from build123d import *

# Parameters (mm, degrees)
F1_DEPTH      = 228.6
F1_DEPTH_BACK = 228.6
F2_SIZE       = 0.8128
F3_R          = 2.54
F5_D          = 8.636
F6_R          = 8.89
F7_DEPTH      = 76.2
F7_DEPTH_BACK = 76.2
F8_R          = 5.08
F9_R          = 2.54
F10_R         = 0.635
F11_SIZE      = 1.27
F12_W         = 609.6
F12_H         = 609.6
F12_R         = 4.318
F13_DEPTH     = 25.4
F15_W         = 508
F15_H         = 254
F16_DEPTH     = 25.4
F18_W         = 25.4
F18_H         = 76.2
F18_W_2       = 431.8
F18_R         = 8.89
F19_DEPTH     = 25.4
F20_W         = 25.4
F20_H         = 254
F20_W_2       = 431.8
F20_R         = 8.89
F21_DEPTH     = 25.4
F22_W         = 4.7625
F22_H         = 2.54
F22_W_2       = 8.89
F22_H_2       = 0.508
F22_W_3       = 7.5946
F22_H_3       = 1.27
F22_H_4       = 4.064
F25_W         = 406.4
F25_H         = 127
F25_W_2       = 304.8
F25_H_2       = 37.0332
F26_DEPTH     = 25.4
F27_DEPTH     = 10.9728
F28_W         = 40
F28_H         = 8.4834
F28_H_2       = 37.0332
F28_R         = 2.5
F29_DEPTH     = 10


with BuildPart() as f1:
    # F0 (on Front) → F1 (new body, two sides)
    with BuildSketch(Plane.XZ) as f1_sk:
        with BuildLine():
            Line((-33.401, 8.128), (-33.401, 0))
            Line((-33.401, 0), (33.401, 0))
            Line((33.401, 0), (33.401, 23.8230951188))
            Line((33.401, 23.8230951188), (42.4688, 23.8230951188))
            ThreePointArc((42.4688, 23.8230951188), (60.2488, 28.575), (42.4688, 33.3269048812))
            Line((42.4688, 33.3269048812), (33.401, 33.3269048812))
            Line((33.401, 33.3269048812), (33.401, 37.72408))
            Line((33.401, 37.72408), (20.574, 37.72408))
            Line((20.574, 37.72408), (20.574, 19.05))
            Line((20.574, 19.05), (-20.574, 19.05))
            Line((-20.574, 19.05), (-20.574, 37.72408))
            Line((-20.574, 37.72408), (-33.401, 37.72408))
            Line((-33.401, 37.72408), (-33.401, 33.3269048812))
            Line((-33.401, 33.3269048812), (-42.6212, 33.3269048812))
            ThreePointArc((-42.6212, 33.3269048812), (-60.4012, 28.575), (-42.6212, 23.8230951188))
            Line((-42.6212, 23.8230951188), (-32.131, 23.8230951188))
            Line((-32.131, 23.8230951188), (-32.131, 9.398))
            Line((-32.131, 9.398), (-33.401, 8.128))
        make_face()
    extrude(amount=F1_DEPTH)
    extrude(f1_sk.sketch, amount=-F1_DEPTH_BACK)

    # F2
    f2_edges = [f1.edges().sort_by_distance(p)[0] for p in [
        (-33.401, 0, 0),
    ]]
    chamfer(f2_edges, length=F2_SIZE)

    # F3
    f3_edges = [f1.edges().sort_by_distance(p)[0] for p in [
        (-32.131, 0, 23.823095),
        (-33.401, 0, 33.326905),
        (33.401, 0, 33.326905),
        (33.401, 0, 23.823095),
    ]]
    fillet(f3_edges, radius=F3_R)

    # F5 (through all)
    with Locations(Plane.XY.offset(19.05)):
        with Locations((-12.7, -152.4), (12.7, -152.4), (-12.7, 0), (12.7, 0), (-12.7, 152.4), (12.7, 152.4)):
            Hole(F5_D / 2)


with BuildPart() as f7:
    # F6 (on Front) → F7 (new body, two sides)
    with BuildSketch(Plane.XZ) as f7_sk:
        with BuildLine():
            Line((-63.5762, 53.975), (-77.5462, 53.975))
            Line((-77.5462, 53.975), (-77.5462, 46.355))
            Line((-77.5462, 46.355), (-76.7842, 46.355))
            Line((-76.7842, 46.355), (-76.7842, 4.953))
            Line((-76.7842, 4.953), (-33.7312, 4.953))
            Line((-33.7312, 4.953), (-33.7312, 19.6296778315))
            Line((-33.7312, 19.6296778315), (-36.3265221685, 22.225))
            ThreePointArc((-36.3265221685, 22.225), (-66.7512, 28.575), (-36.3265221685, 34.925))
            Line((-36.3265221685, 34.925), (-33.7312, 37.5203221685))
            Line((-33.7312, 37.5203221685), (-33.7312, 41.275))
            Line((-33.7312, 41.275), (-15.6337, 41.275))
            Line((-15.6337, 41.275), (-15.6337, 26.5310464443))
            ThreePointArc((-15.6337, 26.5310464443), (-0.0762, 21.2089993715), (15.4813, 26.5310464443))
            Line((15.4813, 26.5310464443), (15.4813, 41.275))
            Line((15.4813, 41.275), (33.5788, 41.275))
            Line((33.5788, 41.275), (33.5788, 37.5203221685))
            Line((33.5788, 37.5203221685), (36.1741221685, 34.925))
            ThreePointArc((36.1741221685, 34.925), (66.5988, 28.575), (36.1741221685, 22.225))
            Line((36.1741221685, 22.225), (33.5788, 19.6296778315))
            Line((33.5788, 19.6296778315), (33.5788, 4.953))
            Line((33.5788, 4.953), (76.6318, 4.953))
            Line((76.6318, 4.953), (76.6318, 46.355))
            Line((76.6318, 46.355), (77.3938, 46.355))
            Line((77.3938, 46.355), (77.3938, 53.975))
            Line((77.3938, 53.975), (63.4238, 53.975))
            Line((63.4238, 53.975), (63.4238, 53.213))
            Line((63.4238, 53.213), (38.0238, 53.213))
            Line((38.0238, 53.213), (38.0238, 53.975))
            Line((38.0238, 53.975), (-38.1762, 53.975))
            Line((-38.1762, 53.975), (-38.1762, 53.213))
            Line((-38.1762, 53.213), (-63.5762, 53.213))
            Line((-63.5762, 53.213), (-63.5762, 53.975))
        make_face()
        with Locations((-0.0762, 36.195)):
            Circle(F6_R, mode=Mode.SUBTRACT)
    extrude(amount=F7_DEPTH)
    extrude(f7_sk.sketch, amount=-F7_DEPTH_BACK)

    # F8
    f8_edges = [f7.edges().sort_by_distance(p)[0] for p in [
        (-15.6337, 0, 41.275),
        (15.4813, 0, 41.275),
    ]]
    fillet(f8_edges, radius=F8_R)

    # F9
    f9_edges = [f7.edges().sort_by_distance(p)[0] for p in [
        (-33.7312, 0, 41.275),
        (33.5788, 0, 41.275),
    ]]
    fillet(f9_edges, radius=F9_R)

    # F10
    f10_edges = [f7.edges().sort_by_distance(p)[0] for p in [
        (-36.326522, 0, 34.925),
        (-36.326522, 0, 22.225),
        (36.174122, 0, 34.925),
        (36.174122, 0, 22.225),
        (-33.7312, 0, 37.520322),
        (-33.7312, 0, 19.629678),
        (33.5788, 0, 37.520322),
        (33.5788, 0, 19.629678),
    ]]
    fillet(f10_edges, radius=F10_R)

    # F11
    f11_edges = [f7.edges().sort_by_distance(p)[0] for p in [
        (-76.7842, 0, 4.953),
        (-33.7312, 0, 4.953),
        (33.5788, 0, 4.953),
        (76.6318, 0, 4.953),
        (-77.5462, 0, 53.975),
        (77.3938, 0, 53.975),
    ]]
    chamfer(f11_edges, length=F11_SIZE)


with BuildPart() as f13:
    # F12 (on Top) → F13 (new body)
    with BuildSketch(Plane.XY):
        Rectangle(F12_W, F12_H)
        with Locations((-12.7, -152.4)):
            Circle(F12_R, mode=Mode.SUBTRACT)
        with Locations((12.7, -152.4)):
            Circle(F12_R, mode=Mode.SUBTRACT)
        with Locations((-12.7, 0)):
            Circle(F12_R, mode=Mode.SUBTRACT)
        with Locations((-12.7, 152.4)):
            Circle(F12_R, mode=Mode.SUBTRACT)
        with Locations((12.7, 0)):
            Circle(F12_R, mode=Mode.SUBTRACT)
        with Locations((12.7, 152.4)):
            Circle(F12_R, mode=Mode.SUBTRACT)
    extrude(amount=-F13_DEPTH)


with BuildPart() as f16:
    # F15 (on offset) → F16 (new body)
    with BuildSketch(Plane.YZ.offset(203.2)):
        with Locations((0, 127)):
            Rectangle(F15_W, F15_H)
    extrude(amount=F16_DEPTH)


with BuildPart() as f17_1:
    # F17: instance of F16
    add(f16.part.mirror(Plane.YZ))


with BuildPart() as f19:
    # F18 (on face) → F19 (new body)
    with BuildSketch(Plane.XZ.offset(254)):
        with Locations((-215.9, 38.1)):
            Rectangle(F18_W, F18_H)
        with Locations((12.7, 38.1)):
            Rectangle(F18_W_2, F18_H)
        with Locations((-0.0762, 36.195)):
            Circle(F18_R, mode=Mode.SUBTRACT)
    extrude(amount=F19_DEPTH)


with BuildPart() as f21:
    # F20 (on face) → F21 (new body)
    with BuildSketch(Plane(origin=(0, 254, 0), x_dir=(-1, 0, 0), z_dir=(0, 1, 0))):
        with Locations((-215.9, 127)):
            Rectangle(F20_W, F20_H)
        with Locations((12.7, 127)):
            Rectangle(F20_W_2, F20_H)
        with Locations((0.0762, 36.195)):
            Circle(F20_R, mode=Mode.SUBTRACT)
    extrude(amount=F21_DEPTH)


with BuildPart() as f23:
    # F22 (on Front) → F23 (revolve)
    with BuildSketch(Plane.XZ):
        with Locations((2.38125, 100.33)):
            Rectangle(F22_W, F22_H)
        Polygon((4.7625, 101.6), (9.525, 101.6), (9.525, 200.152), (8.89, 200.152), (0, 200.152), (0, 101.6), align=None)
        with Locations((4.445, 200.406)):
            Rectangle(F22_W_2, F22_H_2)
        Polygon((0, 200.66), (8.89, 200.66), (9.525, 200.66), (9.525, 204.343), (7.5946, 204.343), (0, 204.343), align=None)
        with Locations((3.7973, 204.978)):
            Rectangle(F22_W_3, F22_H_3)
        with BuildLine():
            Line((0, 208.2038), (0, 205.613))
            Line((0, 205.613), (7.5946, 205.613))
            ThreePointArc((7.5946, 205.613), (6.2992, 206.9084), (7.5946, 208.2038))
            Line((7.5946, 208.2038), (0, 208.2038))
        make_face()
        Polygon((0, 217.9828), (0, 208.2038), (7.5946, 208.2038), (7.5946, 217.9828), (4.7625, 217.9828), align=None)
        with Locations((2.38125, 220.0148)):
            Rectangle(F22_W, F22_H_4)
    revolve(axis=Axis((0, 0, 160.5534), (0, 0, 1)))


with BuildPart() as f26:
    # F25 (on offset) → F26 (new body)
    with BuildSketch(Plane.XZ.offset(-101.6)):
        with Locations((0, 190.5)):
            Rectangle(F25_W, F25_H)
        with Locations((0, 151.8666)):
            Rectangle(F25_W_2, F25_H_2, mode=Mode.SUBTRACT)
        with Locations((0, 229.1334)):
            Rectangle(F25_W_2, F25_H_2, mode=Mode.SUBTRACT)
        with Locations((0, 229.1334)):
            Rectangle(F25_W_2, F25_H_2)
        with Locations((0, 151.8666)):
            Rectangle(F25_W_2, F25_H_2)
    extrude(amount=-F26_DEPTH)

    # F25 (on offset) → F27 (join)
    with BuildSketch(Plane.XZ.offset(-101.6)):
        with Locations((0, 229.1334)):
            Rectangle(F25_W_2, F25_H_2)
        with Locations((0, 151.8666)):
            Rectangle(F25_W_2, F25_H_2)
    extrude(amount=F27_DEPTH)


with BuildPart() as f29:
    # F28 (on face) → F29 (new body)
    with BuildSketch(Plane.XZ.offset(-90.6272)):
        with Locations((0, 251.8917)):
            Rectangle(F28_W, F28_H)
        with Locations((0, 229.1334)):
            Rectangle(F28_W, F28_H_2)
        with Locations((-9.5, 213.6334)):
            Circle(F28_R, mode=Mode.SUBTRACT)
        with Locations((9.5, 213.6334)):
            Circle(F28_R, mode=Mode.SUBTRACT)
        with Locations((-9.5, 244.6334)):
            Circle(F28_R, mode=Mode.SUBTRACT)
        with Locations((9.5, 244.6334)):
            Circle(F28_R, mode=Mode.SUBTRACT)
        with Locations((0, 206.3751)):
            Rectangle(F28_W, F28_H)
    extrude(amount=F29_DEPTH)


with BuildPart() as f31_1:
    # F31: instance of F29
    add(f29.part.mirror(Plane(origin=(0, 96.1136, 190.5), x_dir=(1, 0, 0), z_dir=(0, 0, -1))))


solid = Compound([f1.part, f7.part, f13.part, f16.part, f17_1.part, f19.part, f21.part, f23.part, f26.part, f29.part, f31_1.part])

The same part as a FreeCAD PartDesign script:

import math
import FreeCAD as App
import Part
import Sketcher
from FreeCAD import Vector
Q = App.Units.Quantity


def edges_at(feature, points):
    """Names of the edges that pass closest to the given points."""
    edges = feature.Shape.Edges
    near = lambda p: min(range(len(edges)), key=lambda i: edges[i].distToShape(Part.Vertex(*p))[0])
    return sorted({f"Edge{near(p) + 1}" for p in points})


def add_polygon(sketch, points):
    """Adds a closed chain of lines whose ends are joined by coincident constraints."""
    first, n = sketch.GeometryCount, len(points)
    for a, b in zip(points, points[1:] + points[:1]):
        sketch.addGeometry(Part.LineSegment(App.Vector(*a, 0), App.Vector(*b, 0)), False)
    for i in range(n):
        sketch.addConstraint(Sketcher.Constraint("Coincident", first + i, 2, first + (i + 1) % n, 1))

doc = App.newDocument("Part")
body = doc.addObject("PartDesign::Body", "Body")

sketch1 = body.newObject("Sketcher::SketchObject", "Sketch")
sketch1.AttachmentSupport = (doc.getObject("XZ_Plane"), [""])
sketch1.MapMode = "FlatFace"
sketch1.addGeometry([
    Part.LineSegment(Vector(-33.401, 8.128, 0), Vector(-33.401, 0, 0)),
    Part.LineSegment(Vector(-33.401, 0, 0), Vector(33.401, 0, 0)),
    Part.LineSegment(Vector(33.401, 0, 0), Vector(33.401, 23.823095, 0)),
    Part.LineSegment(Vector(33.401, 23.823095, 0), Vector(42.4688, 23.823095, 0)),
    Part.ArcOfCircle(Part.Circle(Vector(50.7238, 28.575, 0), Vector(0, 0, 1), 9.525), math.radians(-150.073565), math.radians(150.073565)),
    Part.LineSegment(Vector(42.4688, 33.326905, 0), Vector(33.401, 33.326905, 0)),
    Part.LineSegment(Vector(33.401, 33.326905, 0), Vector(33.401, 37.72408, 0)),
    Part.LineSegment(Vector(33.401, 37.72408, 0), Vector(20.574, 37.72408, 0)),
    Part.LineSegment(Vector(20.574, 37.72408, 0), Vector(20.574, 19.05, 0)),
    Part.LineSegment(Vector(20.574, 19.05, 0), Vector(-20.574, 19.05, 0)),
    Part.LineSegment(Vector(-20.574, 19.05, 0), Vector(-20.574, 37.72408, 0)),
    Part.LineSegment(Vector(-20.574, 37.72408, 0), Vector(-33.401, 37.72408, 0)),
    Part.LineSegment(Vector(-33.401, 37.72408, 0), Vector(-33.401, 33.326905, 0)),
    Part.LineSegment(Vector(-33.401, 33.326905, 0), Vector(-42.6212, 33.326905, 0)),
    Part.ArcOfCircle(Part.Circle(Vector(-50.8762, 28.575, 0), Vector(0, 0, 1), 9.525), math.radians(29.926435), math.radians(330.073565)),
    Part.LineSegment(Vector(-42.6212, 23.823095, 0), Vector(-32.131, 23.823095, 0)),
    Part.LineSegment(Vector(-32.131, 23.823095, 0), Vector(-32.131, 9.398, 0)),
    Part.LineSegment(Vector(-32.131, 9.398, 0), Vector(-33.401, 8.128, 0)),
], False)
sketch1.addConstraint([
    Sketcher.Constraint("Coincident", 0, 2, 1, 1),
    Sketcher.Constraint("Coincident", 1, 2, 2, 1),
    Sketcher.Constraint("Coincident", 2, 2, 3, 1),
    Sketcher.Constraint("Coincident", 3, 2, 4, 1),
    Sketcher.Constraint("Coincident", 4, 2, 5, 1),
    Sketcher.Constraint("Coincident", 5, 2, 6, 1),
    Sketcher.Constraint("Coincident", 6, 2, 7, 1),
    Sketcher.Constraint("Coincident", 7, 2, 8, 1),
    Sketcher.Constraint("Coincident", 8, 2, 9, 1),
    Sketcher.Constraint("Coincident", 9, 2, 10, 1),
    Sketcher.Constraint("Coincident", 10, 2, 11, 1),
    Sketcher.Constraint("Coincident", 11, 2, 12, 1),
    Sketcher.Constraint("Coincident", 12, 2, 13, 1),
    Sketcher.Constraint("Coincident", 13, 2, 14, 1),
    Sketcher.Constraint("Coincident", 14, 2, 15, 1),
    Sketcher.Constraint("Coincident", 15, 2, 16, 1),
    Sketcher.Constraint("Coincident", 16, 2, 17, 1),
    Sketcher.Constraint("Coincident", 17, 2, 0, 1),
    Sketcher.Constraint("Vertical", 0),
    Sketcher.Constraint("Horizontal", 1),
    Sketcher.Constraint("Vertical", 2),
    Sketcher.Constraint("Horizontal", 3),
    Sketcher.Constraint("Horizontal", 5),
    Sketcher.Constraint("Vertical", 6),
    Sketcher.Constraint("Horizontal", 7),
    Sketcher.Constraint("Vertical", 8),
    Sketcher.Constraint("Horizontal", 9),
    Sketcher.Constraint("Vertical", 10),
    Sketcher.Constraint("Horizontal", 11),
    Sketcher.Constraint("Vertical", 12),
    Sketcher.Constraint("Horizontal", 13),
    Sketcher.Constraint("Horizontal", 15),
    Sketcher.Constraint("Vertical", 16),
    Sketcher.Constraint("Equal", 4, 14),
    Sketcher.Constraint("Symmetric", 0, 2, 1, 2, -1, 1),
    Sketcher.Constraint("Symmetric", 7, 2, 10, 2, -2),
    Sketcher.Constraint("Symmetric", 5, 2, 12, 2, -2),
    Sketcher.Constraint("Horizontal", 4, 3, 14, 3),
    Sketcher.Constraint("Horizontal", 3, 2, 14, 2),
    Sketcher.Constraint("Vertical", 3, 2, 4, 2),
    Sketcher.Constraint("Vertical", 2, 2, 5, 2),
    Sketcher.Constraint("Angle", 17, Q("-135 deg")),
    Sketcher.Constraint("Radius", 4, Q("0.375 in")),
    Sketcher.Constraint("DistanceX", 14, 3, 4, 3, Q("4 in")),
    Sketcher.Constraint("DistanceX", 1, 1, 1, 2, Q("2.63 in")),
    Sketcher.Constraint("DistanceX", 9, 2, 9, 1, Q("1.62 in")),
    Sketcher.Constraint("DistanceY", 0, 2, 0, 1, Q("0.32 in")),
    Sketcher.Constraint("DistanceX", 3, 1, 3, 2, Q("0.357 in")),
    Sketcher.Constraint("DistanceX", 13, 2, 13, 1, Q("0.363 in")),
    Sketcher.Constraint("DistanceX", 15, 1, 15, 2, Q("0.413 in")),
    Sketcher.Constraint("DistanceY", -1, 1, 8, 2, Q("0.75 in")),
    Sketcher.Constraint("DistanceY", 8, 2, 8, 1, Q("0.7352 in")),
    Sketcher.Constraint("DistanceY", -1, 1, 4, 3, Q("1.125 in")),
])
pad1 = body.newObject("PartDesign::Pad", "Pad")
pad1.Profile = sketch1
pad1.Type = "TwoLengths"
pad1.Length = Q("9 in")
pad1.Length2 = Q("9 in")
doc.recompute()

chamfer = body.newObject("PartDesign::Chamfer", "Chamfer")
chamfer.Base = (pad1, edges_at(pad1, [(-33.401, 0, 0)]))
chamfer.Size = Q("0.032 in")
doc.recompute()

fillet = body.newObject("PartDesign::Fillet", "Fillet")
fillet.Base = (chamfer, edges_at(chamfer, [
    (-32.131, 0, 23.823),
    (-33.401, 0, 33.327),
    (33.401, 0, 33.327),
    (33.401, 0, 23.823),
]))
fillet.Radius = Q("0.1 in")

sketch2 = body.newObject("Sketcher::SketchObject", "Sketch001")
sketch2.AttachmentSupport = (doc.getObject("XY_Plane"), [""])
sketch2.MapMode = "FlatFace"
sketch2.AttachmentOffset = App.Placement(Vector(0, 0, 0.75 * 25.4), App.Rotation())
sketch2.addGeometry([
    Part.Circle(Vector(-12.7, -152.4, 0), Vector(0, 0, 1), 4.318),
    Part.Circle(Vector(12.7, -152.4, 0), Vector(0, 0, 1), 4.318),
    Part.Circle(Vector(-12.7, 0, 0), Vector(0, 0, 1), 4.318),
    Part.Circle(Vector(12.7, 0, 0), Vector(0, 0, 1), 4.318),
    Part.Circle(Vector(-12.7, 152.4, 0), Vector(0, 0, 1), 4.318),
    Part.Circle(Vector(12.7, 152.4, 0), Vector(0, 0, 1), 4.318),
], False)
sketch2.addConstraint([
    Sketcher.Constraint("Equal", 0, 1),
    Sketcher.Constraint("Equal", 1, 2),
    Sketcher.Constraint("Equal", 2, 3),
    Sketcher.Constraint("Equal", 3, 4),
    Sketcher.Constraint("Equal", 4, 5),
    Sketcher.Constraint("Symmetric", 2, 3, 3, 3, -1, 1),
    Sketcher.Constraint("Symmetric", 1, 3, 4, 3, -1, 1),
    Sketcher.Constraint("Symmetric", 0, 3, 5, 3, -1, 1),
    Sketcher.Constraint("Symmetric", 0, 3, 1, 3, -2),
    Sketcher.Constraint("PointOnObject", 2, 3, -1),
    Sketcher.Constraint("Vertical", 0, 3, 2, 3),
    Sketcher.Constraint("Diameter", 0, Q("0.34 in")),
    Sketcher.Constraint("DistanceY", 0, 3, -1, 1, Q("6 in")),
    Sketcher.Constraint("DistanceX", 0, 3, 1, 3, Q("1 in")),
])
doc.recompute()
hole = body.newObject("PartDesign::Hole", "Hole")
hole.Profile = sketch2
hole.ThreadType = "None"
hole.Diameter = Q("0.34 in")
hole.DepthType = "ThroughAll"
body2 = doc.addObject("PartDesign::Body", "Body001")

sketch3 = body2.newObject("Sketcher::SketchObject", "Sketch002")
sketch3.AttachmentSupport = (doc.getObject("XZ_Plane001"), [""])
sketch3.MapMode = "FlatFace"
sketch3.addGeometry([
    Part.LineSegment(Vector(-63.5762, 53.975, 0), Vector(-77.5462, 53.975, 0)),
    Part.LineSegment(Vector(-77.5462, 53.975, 0), Vector(-77.5462, 46.355, 0)),
    Part.LineSegment(Vector(-77.5462, 46.355, 0), Vector(-76.7842, 46.355, 0)),
    Part.LineSegment(Vector(-76.7842, 46.355, 0), Vector(-76.7842, 4.953, 0)),
    Part.LineSegment(Vector(-76.7842, 4.953, 0), Vector(-33.7312, 4.953, 0)),
    Part.LineSegment(Vector(-33.7312, 4.953, 0), Vector(-33.7312, 19.629678, 0)),
    Part.LineSegment(Vector(-33.7312, 19.629678, 0), Vector(-36.326522, 22.225, 0)),
    Part.ArcOfCircle(Part.Circle(Vector(-50.8762, 28.575, 0), Vector(0, 0, 1), 15.875), math.radians(23.578178), math.radians(336.421822)),
    Part.LineSegment(Vector(-36.326522, 34.925, 0), Vector(-33.7312, 37.520322, 0)),
    Part.LineSegment(Vector(-33.7312, 37.520322, 0), Vector(-33.7312, 41.275, 0)),
    Part.LineSegment(Vector(-33.7312, 41.275, 0), Vector(-15.6337, 41.275, 0)),
    Part.LineSegment(Vector(-15.6337, 41.275, 0), Vector(-15.6337, 26.531046, 0)),
    Part.ArcOfCircle(Part.Circle(Vector(-0.0762, 46.608999, 0), Vector(0, 0, 1), 25.4), math.radians(-127.77049), math.radians(-52.22951)),
    Part.LineSegment(Vector(15.4813, 26.531046, 0), Vector(15.4813, 41.275, 0)),
    Part.LineSegment(Vector(15.4813, 41.275, 0), Vector(33.5788, 41.275, 0)),
    Part.LineSegment(Vector(33.5788, 41.275, 0), Vector(33.5788, 37.520322, 0)),
    Part.LineSegment(Vector(33.5788, 37.520322, 0), Vector(36.174122, 34.925, 0)),
    Part.ArcOfCircle(Part.Circle(Vector(50.7238, 28.575, 0), Vector(0, 0, 1), 15.875), math.radians(-156.421822), math.radians(156.421822)),
    Part.LineSegment(Vector(36.174122, 22.225, 0), Vector(33.5788, 19.629678, 0)),
    Part.LineSegment(Vector(33.5788, 19.629678, 0), Vector(33.5788, 4.953, 0)),
    Part.LineSegment(Vector(33.5788, 4.953, 0), Vector(76.6318, 4.953, 0)),
    Part.LineSegment(Vector(76.6318, 4.953, 0), Vector(76.6318, 46.355, 0)),
    Part.LineSegment(Vector(76.6318, 46.355, 0), Vector(77.3938, 46.355, 0)),
    Part.LineSegment(Vector(77.3938, 46.355, 0), Vector(77.3938, 53.975, 0)),
    Part.LineSegment(Vector(77.3938, 53.975, 0), Vector(63.4238, 53.975, 0)),
    Part.LineSegment(Vector(63.4238, 53.975, 0), Vector(63.4238, 53.213, 0)),
    Part.LineSegment(Vector(63.4238, 53.213, 0), Vector(38.0238, 53.213, 0)),
    Part.LineSegment(Vector(38.0238, 53.213, 0), Vector(38.0238, 53.975, 0)),
    Part.LineSegment(Vector(38.0238, 53.975, 0), Vector(-38.1762, 53.975, 0)),
    Part.LineSegment(Vector(-38.1762, 53.975, 0), Vector(-38.1762, 53.213, 0)),
    Part.LineSegment(Vector(-38.1762, 53.213, 0), Vector(-63.5762, 53.213, 0)),
    Part.LineSegment(Vector(-63.5762, 53.213, 0), Vector(-63.5762, 53.975, 0)),
    Part.Circle(Vector(-0.0762, 36.195, 0), Vector(0, 0, 1), 8.89),
], False)
sketch3.addConstraint([
    Sketcher.Constraint("Coincident", 0, 2, 1, 1),
    Sketcher.Constraint("Coincident", 1, 2, 2, 1),
    Sketcher.Constraint("Coincident", 2, 2, 3, 1),
    Sketcher.Constraint("Coincident", 3, 2, 4, 1),
    Sketcher.Constraint("Coincident", 4, 2, 5, 1),
    Sketcher.Constraint("Coincident", 5, 2, 6, 1),
    Sketcher.Constraint("Coincident", 6, 2, 7, 2),
    Sketcher.Constraint("Coincident", 7, 1, 8, 1),
    Sketcher.Constraint("Coincident", 8, 2, 9, 1),
    Sketcher.Constraint("Coincident", 9, 2, 10, 1),
    Sketcher.Constraint("Coincident", 10, 2, 11, 1),
    Sketcher.Constraint("Coincident", 11, 2, 12, 1),
    Sketcher.Constraint("Coincident", 12, 2, 13, 1),
    Sketcher.Constraint("Coincident", 13, 2, 14, 1),
    Sketcher.Constraint("Coincident", 14, 2, 15, 1),
    Sketcher.Constraint("Coincident", 15, 2, 16, 1),
    Sketcher.Constraint("Coincident", 16, 2, 17, 2),
    Sketcher.Constraint("Coincident", 17, 1, 18, 1),
    Sketcher.Constraint("Coincident", 18, 2, 19, 1),
    Sketcher.Constraint("Coincident", 19, 2, 20, 1),
    Sketcher.Constraint("Coincident", 20, 2, 21, 1),
    Sketcher.Constraint("Coincident", 21, 2, 22, 1),
    Sketcher.Constraint("Coincident", 22, 2, 23, 1),
    Sketcher.Constraint("Coincident", 23, 2, 24, 1),
    Sketcher.Constraint("Coincident", 24, 2, 25, 1),
    Sketcher.Constraint("Coincident", 25, 2, 26, 1),
    Sketcher.Constraint("Coincident", 26, 2, 27, 1),
    Sketcher.Constraint("Coincident", 27, 2, 28, 1),
    Sketcher.Constraint("Coincident", 28, 2, 29, 1),
    Sketcher.Constraint("Coincident", 29, 2, 30, 1),
    Sketcher.Constraint("Coincident", 30, 2, 31, 1),
    Sketcher.Constraint("Coincident", 31, 2, 0, 1),
    Sketcher.Constraint("Horizontal", 0),
    Sketcher.Constraint("Vertical", 1),
    Sketcher.Constraint("Horizontal", 2),
    Sketcher.Constraint("Vertical", 3),
    Sketcher.Constraint("Horizontal", 4),
    Sketcher.Constraint("Vertical", 5),
    Sketcher.Constraint("Vertical", 9),
    Sketcher.Constraint("Horizontal", 10),
    Sketcher.Constraint("Vertical", 11),
    Sketcher.Constraint("Vertical", 13),
    Sketcher.Constraint("Horizontal", 14),
    Sketcher.Constraint("Vertical", 15),
    Sketcher.Constraint("Vertical", 19),
    Sketcher.Constraint("Horizontal", 20),
    Sketcher.Constraint("Vertical", 21),
    Sketcher.Constraint("Horizontal", 22),
    Sketcher.Constraint("Vertical", 23),
    Sketcher.Constraint("Horizontal", 24),
    Sketcher.Constraint("Vertical", 25),
    Sketcher.Constraint("Horizontal", 26),
    Sketcher.Constraint("Vertical", 27),
    Sketcher.Constraint("Horizontal", 28),
    Sketcher.Constraint("Vertical", 29),
    Sketcher.Constraint("Horizontal", 30),
    Sketcher.Constraint("Vertical", 31),
    Sketcher.Constraint("Equal", 7, 17),
    Sketcher.Constraint("Perpendicular", 6, 8),
    Sketcher.Constraint("Perpendicular", 8, 16),
    Sketcher.Constraint("Perpendicular", 16, 18),
    Sketcher.Constraint("Horizontal", 7, 3, 17, 3),
    Sketcher.Constraint("Horizontal", 11, 2, 12, 2),
    Sketcher.Constraint("Horizontal", 10, 2, 13, 2),
    Sketcher.Constraint("Horizontal", 8, 2, 15, 2),
    Sketcher.Constraint("Horizontal", 7, 1, 16, 2),
    Sketcher.Constraint("Horizontal", 6, 2, 17, 1),
    Sketcher.Constraint("Horizontal", 5, 2, 18, 2),
    Sketcher.Constraint("Horizontal", 4, 2, 19, 2),
    Sketcher.Constraint("Horizontal", 2, 2, 21, 2),
    Sketcher.Constraint("Horizontal", 0, 2, 23, 2),
    Sketcher.Constraint("Horizontal", 24, 2, 27, 2),
    Sketcher.Constraint("Horizontal", 26, 2, 29, 2),
    Sketcher.Constraint("Vertical", 12, 3, 32, 3),
    Sketcher.Constraint("Vertical", 6, 2, 7, 1),
    Sketcher.Constraint("Vertical", 5, 2, 8, 2),
    Sketcher.Constraint("Vertical", 15, 2, 18, 2),
    Sketcher.Constraint("Equal", 10, 14),
    Sketcher.Constraint("Equal", 4, 20),
    Sketcher.Constraint("Equal", 2, 22),
    Sketcher.Constraint("Equal", 0, 24),
    Sketcher.Constraint("Equal", 26, 30),
    Sketcher.Constraint("Equal", 22, 25),
    Sketcher.Constraint("Radius", 12, Q("1 in")),
    Sketcher.Constraint("Diameter", 32, Q("0.7 in")),
    Sketcher.Constraint("DistanceX", 26, 2, 26, 1, Q("1 in")),
    Sketcher.Constraint("DistanceX", 28, 2, 28, 1, Q("3 in")),
    Sketcher.Constraint("DistanceY", 1, 2, 1, 1, Q("0.3 in")),
    Sketcher.Constraint("Radius", 7, Q("0.625 in")),
    Sketcher.Constraint("DistanceX", 7, 3, 12, 3, Q("2 in")),
    Sketcher.Constraint("DistanceY", 7, 3, 0, 2, Q("1 in")),
    Sketcher.Constraint("DistanceX", 0, 2, 0, 1, Q("0.55 in")),
    Sketcher.Constraint("DistanceX", 2, 1, 2, 2, Q("0.03 in")),
    Sketcher.Constraint("DistanceY", 3, 2, 3, 1, Q("1.63 in")),
    Sketcher.Constraint("DistanceY", 7, 3, 32, 3, Q("0.3 in")),
    Sketcher.Constraint("DistanceY", 6, 2, 7, 1, Q("0.5 in")),
    Sketcher.Constraint("DistanceY", 7, 3, 9, 2, Q("0.5 in")),
    Sketcher.Constraint("DistanceX", 4, 1, 4, 2, Q("1.695 in")),
    Sketcher.Constraint("DistanceY", 7, 3, 12, 3, Q("0.71 in")),
    Sketcher.Constraint("DistanceX", 10, 1, 10, 2, Q("0.7125 in")),
    Sketcher.Constraint("DistanceX", 7, 3, -1, 1, Q("2.003 in")),
    Sketcher.Constraint("DistanceY", -1, 1, 7, 3, Q("1.125 in")),
])
pad2 = body2.newObject("PartDesign::Pad", "Pad001")
pad2.Profile = sketch3
pad2.Type = "TwoLengths"
pad2.Length = Q("3 in")
pad2.Length2 = Q("3 in")
doc.recompute()

fillet2 = body2.newObject("PartDesign::Fillet", "Fillet001")
fillet2.Base = (pad2, edges_at(pad2, [(-15.634, 0, 41.275), (15.481, 0, 41.275)]))
fillet2.Radius = Q("0.2 in")
doc.recompute()

fillet3 = body2.newObject("PartDesign::Fillet", "Fillet002")
fillet3.Base = (fillet2, edges_at(fillet2, [(-33.731, 0, 41.275), (33.579, 0, 41.275)]))
fillet3.Radius = Q("0.1 in")
doc.recompute()

fillet4 = body2.newObject("PartDesign::Fillet", "Fillet003")
fillet4.Base = (fillet3, edges_at(fillet3, [
    (-36.327, 0, 34.925),
    (-36.327, 0, 22.225),
    (36.174, 0, 34.925),
    (36.174, 0, 22.225),
    (-33.731, 0, 37.52),
    (-33.731, 0, 19.63),
    (33.579, 0, 37.52),
    (33.579, 0, 19.63),
]))
fillet4.Radius = Q("0.025 in")
doc.recompute()

chamfer2 = body2.newObject("PartDesign::Chamfer", "Chamfer001")
chamfer2.Base = (fillet4, edges_at(fillet4, [
    (-76.784, 0, 4.953),
    (-33.731, 0, 4.953),
    (33.579, 0, 4.953),
    (76.632, 0, 4.953),
    (-77.546, 0, 53.975),
    (77.394, 0, 53.975),
]))
chamfer2.Size = Q("0.05 in")
body3 = doc.addObject("PartDesign::Body", "Body002")

sketch4 = body3.newObject("Sketcher::SketchObject", "Sketch003")
sketch4.AttachmentSupport = (doc.getObject("XY_Plane002"), [""])
sketch4.MapMode = "FlatFace"
add_polygon(sketch4, [(-304.8, 304.8), (-304.8, -304.8), (304.8, -304.8), (304.8, 304.8)])
sketch4.addGeometry(Part.Circle(Vector(-12.7, -152.4, 0), Vector(0, 0, 1), 4.318), False)
sketch4.addGeometry(Part.Circle(Vector(12.7, -152.4, 0), Vector(0, 0, 1), 4.318), False)
sketch4.addGeometry(Part.Circle(Vector(-12.7, 0, 0), Vector(0, 0, 1), 4.318), False)
sketch4.addGeometry(Part.Circle(Vector(-12.7, 152.4, 0), Vector(0, 0, 1), 4.318), False)
sketch4.addGeometry(Part.Circle(Vector(12.7, 0, 0), Vector(0, 0, 1), 4.318), False)
sketch4.addGeometry(Part.Circle(Vector(12.7, 152.4, 0), Vector(0, 0, 1), 4.318), False)
sketch4.addConstraint([
    Sketcher.Constraint("Vertical", 0),
    Sketcher.Constraint("Horizontal", 1),
    Sketcher.Constraint("Vertical", 2),
    Sketcher.Constraint("Horizontal", 3),
    Sketcher.Constraint("Equal", 4, 5),
    Sketcher.Constraint("Equal", 5, 6),
    Sketcher.Constraint("Equal", 6, 7),
    Sketcher.Constraint("Equal", 7, 8),
    Sketcher.Constraint("Equal", 8, 9),
    Sketcher.Constraint("Symmetric", 5, 3, 7, 3, -1, 1),
    Sketcher.Constraint("Symmetric", 6, 3, 8, 3, -1, 1),
    Sketcher.Constraint("Symmetric", 4, 3, 9, 3, -1, 1),
    Sketcher.Constraint("Symmetric", 0, 2, 2, 2, -1, 1),
    Sketcher.Constraint("Symmetric", 4, 3, 5, 3, -2),
    Sketcher.Constraint("PointOnObject", 6, 3, -1),
    Sketcher.Constraint("Vertical", 4, 3, 6, 3),
    Sketcher.Constraint("Equal", 3, 0),
    Sketcher.Constraint("Diameter", 4, Q("0.34 in")),
    Sketcher.Constraint("DistanceX", 1, 1, 1, 2, Q("24 in")),
    Sketcher.Constraint("DistanceY", 4, 3, -1, 1, Q("6 in")),
    Sketcher.Constraint("DistanceX", 4, 3, 5, 3, Q("1 in")),
])
pad3 = body3.newObject("PartDesign::Pad", "Pad002")
pad3.Profile = sketch4
pad3.Length = Q("1 in")
pad3.Reversed = True
body4 = doc.addObject("PartDesign::Body", "Body003")

sketch5 = body4.newObject("Sketcher::SketchObject", "Sketch004")
sketch5.AttachmentSupport = (doc.getObject("YZ_Plane003"), [""])
sketch5.MapMode = "FlatFace"
sketch5.AttachmentOffset = App.Placement(Vector(0, 0, 8 * 25.4), App.Rotation())
add_polygon(sketch5, [(-254, 254), (-254, 0), (254, 0), (254, 254)])
sketch5.addConstraint([
    Sketcher.Constraint("Vertical", 0),
    Sketcher.Constraint("Horizontal", 1),
    Sketcher.Constraint("Vertical", 2),
    Sketcher.Constraint("Horizontal", 3),
    Sketcher.Constraint("Symmetric", 0, 2, 1, 2, -1, 1),
    Sketcher.Constraint("DistanceX", 1, 1, 1, 2, Q("20 in")),
    Sketcher.Constraint("DistanceY", 0, 2, 0, 1, Q("10 in")),
])
pad4 = body4.newObject("PartDesign::Pad", "Pad003")
pad4.Profile = sketch5
pad4.Length = Q("1 in")
body5 = doc.addObject("PartDesign::Body", "Body004")
doc.recompute()

mirroring = doc.addObject("Part::Mirroring", "Mirroring")
mirroring.Source = body4
mirroring.Base = Vector(0, 0, 0)
mirroring.Normal = Vector(1, 0, 0)
body5.BaseFeature = mirroring
doc.recompute()
body6 = doc.addObject("PartDesign::Body", "Body005")

sketch6 = body6.newObject("Sketcher::SketchObject", "Sketch005")
sketch6.AttachmentSupport = (doc.getObject("XZ_Plane005"), [""])
sketch6.MapMode = "FlatFace"
sketch6.AttachmentOffset = App.Placement(Vector(0, 0, 10 * 25.4), App.Rotation())
add_polygon(sketch6, [(-228.6, 76.2), (-228.6, 0), (228.6, 0), (228.6, 76.2)])
sketch6.addGeometry(Part.Circle(Vector(-0.0762, 36.195, 0), Vector(0, 0, 1), 8.89), False)
sketch6.addConstraint([
    Sketcher.Constraint("Vertical", 0),
    Sketcher.Constraint("Horizontal", 1),
    Sketcher.Constraint("Vertical", 2),
    Sketcher.Constraint("Horizontal", 3),
    Sketcher.Constraint("Symmetric", 0, 2, 1, 2, -1, 1),
    Sketcher.Constraint("Diameter", 4, Q("0.7 in")),
    Sketcher.Constraint("DistanceX", 1, 1, 1, 2, Q("18 in")),
    Sketcher.Constraint("DistanceY", 0, 2, 0, 1, Q("3 in")),
    Sketcher.Constraint("DistanceX", 4, 3, -1, 1, Q("0.003 in")),
    Sketcher.Constraint("DistanceY", -1, 1, 4, 3, Q("1.425 in")),
])
pad5 = body6.newObject("PartDesign::Pad", "Pad004")
pad5.Profile = sketch6
pad5.Length = Q("1 in")
body7 = doc.addObject("PartDesign::Body", "Body006")

sketch7 = body7.newObject("Sketcher::SketchObject", "Sketch006")
sketch7.AttachmentSupport = (doc.getObject("XZ_Plane006"), [""])
sketch7.MapMode = "FlatFace"
sketch7.AttachmentOffset = App.Placement(Vector(0, 0, -10 * 25.4), App.Rotation())
add_polygon(sketch7, [(228.6, 254), (228.6, 0), (-228.6, 0), (-228.6, 254)])
sketch7.addGeometry(Part.Circle(Vector(-0.0762, 36.195, 0), Vector(0, 0, 1), 8.89), False)
sketch7.addConstraint([
    Sketcher.Constraint("Vertical", 0),
    Sketcher.Constraint("Horizontal", 1),
    Sketcher.Constraint("Vertical", 2),
    Sketcher.Constraint("Horizontal", 3),
    Sketcher.Constraint("Symmetric", 0, 2, 1, 2, -1, 1),
    Sketcher.Constraint("Diameter", 4, Q("0.7 in")),
    Sketcher.Constraint("DistanceX", 1, 2, 1, 1, Q("18 in")),
    Sketcher.Constraint("DistanceY", 0, 2, 0, 1, Q("10 in")),
    Sketcher.Constraint("DistanceX", 4, 3, -1, 1, Q("0.003 in")),
    Sketcher.Constraint("DistanceY", -1, 1, 4, 3, Q("1.425 in")),
])
pad6 = body7.newObject("PartDesign::Pad", "Pad005")
pad6.Profile = sketch7
pad6.Length = Q("1 in")
pad6.Reversed = True
body8 = doc.addObject("PartDesign::Body", "Body007")

sketch8 = body8.newObject("Sketcher::SketchObject", "Sketch007")
sketch8.AttachmentSupport = (doc.getObject("XZ_Plane007"), [""])
sketch8.MapMode = "FlatFace"
sketch8.addGeometry([
    Part.LineSegment(Vector(0, 99.06, 0), Vector(4.7625, 99.06, 0)),
    Part.LineSegment(Vector(4.7625, 99.06, 0), Vector(4.7625, 101.6, 0)),
    Part.LineSegment(Vector(4.7625, 101.6, 0), Vector(9.525, 101.6, 0)),
    Part.LineSegment(Vector(9.525, 101.6, 0), Vector(9.525, 200.152, 0)),
    Part.LineSegment(Vector(9.525, 200.152, 0), Vector(8.89, 200.152, 0)),
    Part.LineSegment(Vector(8.89, 200.152, 0), Vector(8.89, 200.66, 0)),
    Part.LineSegment(Vector(8.89, 200.66, 0), Vector(9.525, 200.66, 0)),
    Part.LineSegment(Vector(9.525, 200.66, 0), Vector(9.525, 204.343, 0)),
    Part.LineSegment(Vector(9.525, 204.343, 0), Vector(7.5946, 204.343, 0)),
    Part.LineSegment(Vector(7.5946, 204.343, 0), Vector(7.5946, 205.613, 0)),
    Part.ArcOfCircle(Part.Circle(Vector(7.5946, 206.9084, 0), Vector(0, 0, 1), 1.2954), math.radians(90), math.radians(270)),
    Part.LineSegment(Vector(7.5946, 208.2038, 0), Vector(7.5946, 217.9828, 0)),
    Part.LineSegment(Vector(7.5946, 217.9828, 0), Vector(4.7625, 217.9828, 0)),
    Part.LineSegment(Vector(4.7625, 217.9828, 0), Vector(4.7625, 222.0468, 0)),
    Part.LineSegment(Vector(4.7625, 222.0468, 0), Vector(0, 222.0468, 0)),
    Part.LineSegment(Vector(0, 222.0468, 0), Vector(0, 99.06, 0)),
], False)
sketch8.addConstraint([
    Sketcher.Constraint("Coincident", 0, 2, 1, 1),
    Sketcher.Constraint("Coincident", 1, 2, 2, 1),
    Sketcher.Constraint("Coincident", 2, 2, 3, 1),
    Sketcher.Constraint("Coincident", 3, 2, 4, 1),
    Sketcher.Constraint("Coincident", 4, 2, 5, 1),
    Sketcher.Constraint("Coincident", 5, 2, 6, 1),
    Sketcher.Constraint("Coincident", 6, 2, 7, 1),
    Sketcher.Constraint("Coincident", 7, 2, 8, 1),
    Sketcher.Constraint("Coincident", 8, 2, 9, 1),
    Sketcher.Constraint("Coincident", 9, 2, 10, 2),
    Sketcher.Constraint("Coincident", 10, 1, 11, 1),
    Sketcher.Constraint("Coincident", 11, 2, 12, 1),
    Sketcher.Constraint("Coincident", 12, 2, 13, 1),
    Sketcher.Constraint("Coincident", 13, 2, 14, 1),
    Sketcher.Constraint("Coincident", 14, 2, 15, 1),
    Sketcher.Constraint("Coincident", 15, 2, 0, 1),
    Sketcher.Constraint("Horizontal", 0),
    Sketcher.Constraint("Vertical", 1),
    Sketcher.Constraint("Horizontal", 2),
    Sketcher.Constraint("Vertical", 3),
    Sketcher.Constraint("Horizontal", 4),
    Sketcher.Constraint("Vertical", 5),
    Sketcher.Constraint("Horizontal", 6),
    Sketcher.Constraint("Vertical", 7),
    Sketcher.Constraint("Horizontal", 8),
    Sketcher.Constraint("Vertical", 9),
    Sketcher.Constraint("Vertical", 11),
    Sketcher.Constraint("Horizontal", 12),
    Sketcher.Constraint("Vertical", 13),
    Sketcher.Constraint("Horizontal", 14),
    Sketcher.Constraint("Vertical", 15),
    Sketcher.Constraint("PointOnObject", 14, 2, -2),
    Sketcher.Constraint("Vertical", 3, 2, 6, 2),
    Sketcher.Constraint("Vertical", 10, 3, 8, 2),
    Sketcher.Constraint("Vertical", 9, 2, 10, 1),
    Sketcher.Constraint("Vertical", 1, 2, 12, 2),
    Sketcher.Constraint("Equal", 0, 2),
    Sketcher.Constraint("DistanceY", 1, 1, 1, 2, Q("0.1 in")),
    Sketcher.Constraint("DistanceY", -1, 1, 1, 2, Q("4 in")),
    Sketcher.Constraint("Radius", 10, Q("0.051 in")),
    Sketcher.Constraint("DistanceY", 3, 1, 3, 2, Q("3.88 in")),
    Sketcher.Constraint("DistanceY", 5, 1, 5, 2, Q("0.02 in")),
    Sketcher.Constraint("DistanceY", 9, 1, 9, 2, Q("0.05 in")),
    Sketcher.Constraint("DistanceY", 13, 1, 13, 2, Q("0.16 in")),
    Sketcher.Constraint("DistanceX", 0, 1, 0, 2, Q("0.1875 in")),
    Sketcher.Constraint("DistanceX", 4, 2, 4, 1, Q("0.025 in")),
    Sketcher.Constraint("DistanceX", 8, 2, 8, 1, Q("0.076 in")),
    Sketcher.Constraint("DistanceY", 7, 1, 7, 2, Q("0.145 in")),
    Sketcher.Constraint("DistanceY", 11, 1, 11, 2, Q("0.385 in")),
])
revolution = body8.newObject("PartDesign::Revolution", "Revolution")
revolution.Profile = sketch8
revolution.ReferenceAxis = (sketch8, ["V_Axis"])
revolution.Angle = 360
body9 = doc.addObject("PartDesign::Body", "Body008")

sketch9 = body9.newObject("Sketcher::SketchObject", "Sketch008")
sketch9.AttachmentSupport = (doc.getObject("XZ_Plane008"), [""])
sketch9.MapMode = "FlatFace"
sketch9.AttachmentOffset = App.Placement(Vector(0, 0, -4 * 25.4), App.Rotation())
add_polygon(sketch9, [(-203.2, 254), (-203.2, 127), (203.2, 127), (203.2, 254)])
sketch9.addConstraint([
    Sketcher.Constraint("Vertical", 0),
    Sketcher.Constraint("Horizontal", 1),
    Sketcher.Constraint("Vertical", 2),
    Sketcher.Constraint("Horizontal", 3),
    Sketcher.Constraint("DistanceX", 1, 1, 1, 2, Q("16 in")),
    Sketcher.Constraint("DistanceY", 0, 2, 0, 1, Q("5 in")),
    Sketcher.Constraint("DistanceX", 0, 2, -1, 1, Q("8 in")),
    Sketcher.Constraint("DistanceY", -1, 1, 0, 2, Q("5 in")),
])
pad7 = body9.newObject("PartDesign::Pad", "Pad006")
pad7.Profile = sketch9
pad7.Length = Q("1 in")
pad7.Reversed = True

sketch10 = body9.newObject("Sketcher::SketchObject", "Sketch009")
sketch10.AttachmentSupport = (doc.getObject("XZ_Plane008"), [""])
sketch10.MapMode = "FlatFace"
sketch10.AttachmentOffset = App.Placement(Vector(0, 0, -4 * 25.4), App.Rotation())
add_polygon(sketch10, [(-152.4, 247.65), (-152.4, 210.6168), (152.4, 210.6168), (152.4, 247.65)])
add_polygon(sketch10, [(-152.4, 170.3832), (-152.4, 133.35), (152.4, 133.35), (152.4, 170.3832)])
sketch10.addConstraint([
    Sketcher.Constraint("Vertical", 0),
    Sketcher.Constraint("Horizontal", 1),
    Sketcher.Constraint("Vertical", 2),
    Sketcher.Constraint("Horizontal", 3),
    Sketcher.Constraint("Vertical", 4),
    Sketcher.Constraint("Horizontal", 5),
    Sketcher.Constraint("Vertical", 6),
    Sketcher.Constraint("Horizontal", 7),
    Sketcher.Constraint("Vertical", 3, 2, 4, 2),
    Sketcher.Constraint("Vertical", 2, 2, 5, 2),
    Sketcher.Constraint("Equal", 2, 4),
    Sketcher.Constraint("DistanceX", 1, 1, 1, 2, Q("12 in")),
    Sketcher.Constraint("DistanceX", 0, 2, -1, 1, Q("6 in")),
    Sketcher.Constraint("DistanceY", 4, 2, 3, 2, Q("4.5 in")),
    Sketcher.Constraint("DistanceY", 0, 2, 0, 1, Q("1.458 in")),
    Sketcher.Constraint("DistanceY", -1, 1, 2, 2, Q("9.75 in")),
])
pad8 = body9.newObject("PartDesign::Pad", "Pad007")
pad8.Profile = sketch10
pad8.Length = Q("0.432 in")
body10 = doc.addObject("PartDesign::Body", "Body009")

sketch11 = body10.newObject("Sketcher::SketchObject", "Sketch010")
sketch11.AttachmentSupport = (doc.getObject("XZ_Plane009"), [""])
sketch11.MapMode = "FlatFace"
sketch11.AttachmentOffset = App.Placement(Vector(0, 0, -3.568 * 25.4), App.Rotation())
add_polygon(sketch11, [(-20, 256.1334), (-20, 202.1334), (20, 202.1334), (20, 256.1334)])
sketch11.addGeometry(Part.Circle(Vector(-9.5, 213.6334, 0), Vector(0, 0, 1), 2.5), False)
sketch11.addGeometry(Part.Circle(Vector(9.5, 213.6334, 0), Vector(0, 0, 1), 2.5), False)
sketch11.addGeometry(Part.Circle(Vector(-9.5, 244.6334, 0), Vector(0, 0, 1), 2.5), False)
sketch11.addGeometry(Part.Circle(Vector(9.5, 244.6334, 0), Vector(0, 0, 1), 2.5), False)
sketch11.addConstraint([
    Sketcher.Constraint("Vertical", 0),
    Sketcher.Constraint("Horizontal", 1),
    Sketcher.Constraint("Vertical", 2),
    Sketcher.Constraint("Horizontal", 3),
    Sketcher.Constraint("Equal", 4, 5),
    Sketcher.Constraint("Equal", 5, 6),
    Sketcher.Constraint("Equal", 6, 7),
    Sketcher.Constraint("Symmetric", 4, 3, 5, 3, -2),
    Sketcher.Constraint("Symmetric", 6, 3, 7, 3, -2),
    Sketcher.Constraint("Vertical", 4, 3, 6, 3),
    Sketcher.Constraint("Diameter", 4, Q("5 mm")),
    Sketcher.Constraint("DistanceX", 1, 1, 1, 2, Q("40 mm")),
    Sketcher.Constraint("DistanceY", 0, 2, 0, 1, Q("54 mm")),
    Sketcher.Constraint("DistanceX", 4, 3, -1, 1, Q("9.5 mm")),
    Sketcher.Constraint("DistanceY", -1, 1, 4, 3, Q("213.6334 mm")),
    Sketcher.Constraint("DistanceY", -1, 1, 6, 3, Q("244.6334 mm")),
    Sketcher.Constraint("DistanceX", 0, 2, -1, 1, Q("20 mm")),
    Sketcher.Constraint("DistanceY", -1, 1, 0, 2, Q("202.1334 mm")),
])
pad9 = body10.newObject("PartDesign::Pad", "Pad008")
pad9.Profile = sketch11
pad9.Length = 10
body11 = doc.addObject("PartDesign::Body", "Body010")
doc.recompute()

mirroring2 = doc.addObject("Part::Mirroring", "Mirroring001")
mirroring2.Source = body10
mirroring2.Base = Vector(0, 96.1136, 190.5)
mirroring2.Normal = Vector(0, 0, -1)
body11.BaseFeature = mirroring2
doc.recompute()
mirroring.Visibility = False
mirroring2.Visibility = False

doc.recompute()
